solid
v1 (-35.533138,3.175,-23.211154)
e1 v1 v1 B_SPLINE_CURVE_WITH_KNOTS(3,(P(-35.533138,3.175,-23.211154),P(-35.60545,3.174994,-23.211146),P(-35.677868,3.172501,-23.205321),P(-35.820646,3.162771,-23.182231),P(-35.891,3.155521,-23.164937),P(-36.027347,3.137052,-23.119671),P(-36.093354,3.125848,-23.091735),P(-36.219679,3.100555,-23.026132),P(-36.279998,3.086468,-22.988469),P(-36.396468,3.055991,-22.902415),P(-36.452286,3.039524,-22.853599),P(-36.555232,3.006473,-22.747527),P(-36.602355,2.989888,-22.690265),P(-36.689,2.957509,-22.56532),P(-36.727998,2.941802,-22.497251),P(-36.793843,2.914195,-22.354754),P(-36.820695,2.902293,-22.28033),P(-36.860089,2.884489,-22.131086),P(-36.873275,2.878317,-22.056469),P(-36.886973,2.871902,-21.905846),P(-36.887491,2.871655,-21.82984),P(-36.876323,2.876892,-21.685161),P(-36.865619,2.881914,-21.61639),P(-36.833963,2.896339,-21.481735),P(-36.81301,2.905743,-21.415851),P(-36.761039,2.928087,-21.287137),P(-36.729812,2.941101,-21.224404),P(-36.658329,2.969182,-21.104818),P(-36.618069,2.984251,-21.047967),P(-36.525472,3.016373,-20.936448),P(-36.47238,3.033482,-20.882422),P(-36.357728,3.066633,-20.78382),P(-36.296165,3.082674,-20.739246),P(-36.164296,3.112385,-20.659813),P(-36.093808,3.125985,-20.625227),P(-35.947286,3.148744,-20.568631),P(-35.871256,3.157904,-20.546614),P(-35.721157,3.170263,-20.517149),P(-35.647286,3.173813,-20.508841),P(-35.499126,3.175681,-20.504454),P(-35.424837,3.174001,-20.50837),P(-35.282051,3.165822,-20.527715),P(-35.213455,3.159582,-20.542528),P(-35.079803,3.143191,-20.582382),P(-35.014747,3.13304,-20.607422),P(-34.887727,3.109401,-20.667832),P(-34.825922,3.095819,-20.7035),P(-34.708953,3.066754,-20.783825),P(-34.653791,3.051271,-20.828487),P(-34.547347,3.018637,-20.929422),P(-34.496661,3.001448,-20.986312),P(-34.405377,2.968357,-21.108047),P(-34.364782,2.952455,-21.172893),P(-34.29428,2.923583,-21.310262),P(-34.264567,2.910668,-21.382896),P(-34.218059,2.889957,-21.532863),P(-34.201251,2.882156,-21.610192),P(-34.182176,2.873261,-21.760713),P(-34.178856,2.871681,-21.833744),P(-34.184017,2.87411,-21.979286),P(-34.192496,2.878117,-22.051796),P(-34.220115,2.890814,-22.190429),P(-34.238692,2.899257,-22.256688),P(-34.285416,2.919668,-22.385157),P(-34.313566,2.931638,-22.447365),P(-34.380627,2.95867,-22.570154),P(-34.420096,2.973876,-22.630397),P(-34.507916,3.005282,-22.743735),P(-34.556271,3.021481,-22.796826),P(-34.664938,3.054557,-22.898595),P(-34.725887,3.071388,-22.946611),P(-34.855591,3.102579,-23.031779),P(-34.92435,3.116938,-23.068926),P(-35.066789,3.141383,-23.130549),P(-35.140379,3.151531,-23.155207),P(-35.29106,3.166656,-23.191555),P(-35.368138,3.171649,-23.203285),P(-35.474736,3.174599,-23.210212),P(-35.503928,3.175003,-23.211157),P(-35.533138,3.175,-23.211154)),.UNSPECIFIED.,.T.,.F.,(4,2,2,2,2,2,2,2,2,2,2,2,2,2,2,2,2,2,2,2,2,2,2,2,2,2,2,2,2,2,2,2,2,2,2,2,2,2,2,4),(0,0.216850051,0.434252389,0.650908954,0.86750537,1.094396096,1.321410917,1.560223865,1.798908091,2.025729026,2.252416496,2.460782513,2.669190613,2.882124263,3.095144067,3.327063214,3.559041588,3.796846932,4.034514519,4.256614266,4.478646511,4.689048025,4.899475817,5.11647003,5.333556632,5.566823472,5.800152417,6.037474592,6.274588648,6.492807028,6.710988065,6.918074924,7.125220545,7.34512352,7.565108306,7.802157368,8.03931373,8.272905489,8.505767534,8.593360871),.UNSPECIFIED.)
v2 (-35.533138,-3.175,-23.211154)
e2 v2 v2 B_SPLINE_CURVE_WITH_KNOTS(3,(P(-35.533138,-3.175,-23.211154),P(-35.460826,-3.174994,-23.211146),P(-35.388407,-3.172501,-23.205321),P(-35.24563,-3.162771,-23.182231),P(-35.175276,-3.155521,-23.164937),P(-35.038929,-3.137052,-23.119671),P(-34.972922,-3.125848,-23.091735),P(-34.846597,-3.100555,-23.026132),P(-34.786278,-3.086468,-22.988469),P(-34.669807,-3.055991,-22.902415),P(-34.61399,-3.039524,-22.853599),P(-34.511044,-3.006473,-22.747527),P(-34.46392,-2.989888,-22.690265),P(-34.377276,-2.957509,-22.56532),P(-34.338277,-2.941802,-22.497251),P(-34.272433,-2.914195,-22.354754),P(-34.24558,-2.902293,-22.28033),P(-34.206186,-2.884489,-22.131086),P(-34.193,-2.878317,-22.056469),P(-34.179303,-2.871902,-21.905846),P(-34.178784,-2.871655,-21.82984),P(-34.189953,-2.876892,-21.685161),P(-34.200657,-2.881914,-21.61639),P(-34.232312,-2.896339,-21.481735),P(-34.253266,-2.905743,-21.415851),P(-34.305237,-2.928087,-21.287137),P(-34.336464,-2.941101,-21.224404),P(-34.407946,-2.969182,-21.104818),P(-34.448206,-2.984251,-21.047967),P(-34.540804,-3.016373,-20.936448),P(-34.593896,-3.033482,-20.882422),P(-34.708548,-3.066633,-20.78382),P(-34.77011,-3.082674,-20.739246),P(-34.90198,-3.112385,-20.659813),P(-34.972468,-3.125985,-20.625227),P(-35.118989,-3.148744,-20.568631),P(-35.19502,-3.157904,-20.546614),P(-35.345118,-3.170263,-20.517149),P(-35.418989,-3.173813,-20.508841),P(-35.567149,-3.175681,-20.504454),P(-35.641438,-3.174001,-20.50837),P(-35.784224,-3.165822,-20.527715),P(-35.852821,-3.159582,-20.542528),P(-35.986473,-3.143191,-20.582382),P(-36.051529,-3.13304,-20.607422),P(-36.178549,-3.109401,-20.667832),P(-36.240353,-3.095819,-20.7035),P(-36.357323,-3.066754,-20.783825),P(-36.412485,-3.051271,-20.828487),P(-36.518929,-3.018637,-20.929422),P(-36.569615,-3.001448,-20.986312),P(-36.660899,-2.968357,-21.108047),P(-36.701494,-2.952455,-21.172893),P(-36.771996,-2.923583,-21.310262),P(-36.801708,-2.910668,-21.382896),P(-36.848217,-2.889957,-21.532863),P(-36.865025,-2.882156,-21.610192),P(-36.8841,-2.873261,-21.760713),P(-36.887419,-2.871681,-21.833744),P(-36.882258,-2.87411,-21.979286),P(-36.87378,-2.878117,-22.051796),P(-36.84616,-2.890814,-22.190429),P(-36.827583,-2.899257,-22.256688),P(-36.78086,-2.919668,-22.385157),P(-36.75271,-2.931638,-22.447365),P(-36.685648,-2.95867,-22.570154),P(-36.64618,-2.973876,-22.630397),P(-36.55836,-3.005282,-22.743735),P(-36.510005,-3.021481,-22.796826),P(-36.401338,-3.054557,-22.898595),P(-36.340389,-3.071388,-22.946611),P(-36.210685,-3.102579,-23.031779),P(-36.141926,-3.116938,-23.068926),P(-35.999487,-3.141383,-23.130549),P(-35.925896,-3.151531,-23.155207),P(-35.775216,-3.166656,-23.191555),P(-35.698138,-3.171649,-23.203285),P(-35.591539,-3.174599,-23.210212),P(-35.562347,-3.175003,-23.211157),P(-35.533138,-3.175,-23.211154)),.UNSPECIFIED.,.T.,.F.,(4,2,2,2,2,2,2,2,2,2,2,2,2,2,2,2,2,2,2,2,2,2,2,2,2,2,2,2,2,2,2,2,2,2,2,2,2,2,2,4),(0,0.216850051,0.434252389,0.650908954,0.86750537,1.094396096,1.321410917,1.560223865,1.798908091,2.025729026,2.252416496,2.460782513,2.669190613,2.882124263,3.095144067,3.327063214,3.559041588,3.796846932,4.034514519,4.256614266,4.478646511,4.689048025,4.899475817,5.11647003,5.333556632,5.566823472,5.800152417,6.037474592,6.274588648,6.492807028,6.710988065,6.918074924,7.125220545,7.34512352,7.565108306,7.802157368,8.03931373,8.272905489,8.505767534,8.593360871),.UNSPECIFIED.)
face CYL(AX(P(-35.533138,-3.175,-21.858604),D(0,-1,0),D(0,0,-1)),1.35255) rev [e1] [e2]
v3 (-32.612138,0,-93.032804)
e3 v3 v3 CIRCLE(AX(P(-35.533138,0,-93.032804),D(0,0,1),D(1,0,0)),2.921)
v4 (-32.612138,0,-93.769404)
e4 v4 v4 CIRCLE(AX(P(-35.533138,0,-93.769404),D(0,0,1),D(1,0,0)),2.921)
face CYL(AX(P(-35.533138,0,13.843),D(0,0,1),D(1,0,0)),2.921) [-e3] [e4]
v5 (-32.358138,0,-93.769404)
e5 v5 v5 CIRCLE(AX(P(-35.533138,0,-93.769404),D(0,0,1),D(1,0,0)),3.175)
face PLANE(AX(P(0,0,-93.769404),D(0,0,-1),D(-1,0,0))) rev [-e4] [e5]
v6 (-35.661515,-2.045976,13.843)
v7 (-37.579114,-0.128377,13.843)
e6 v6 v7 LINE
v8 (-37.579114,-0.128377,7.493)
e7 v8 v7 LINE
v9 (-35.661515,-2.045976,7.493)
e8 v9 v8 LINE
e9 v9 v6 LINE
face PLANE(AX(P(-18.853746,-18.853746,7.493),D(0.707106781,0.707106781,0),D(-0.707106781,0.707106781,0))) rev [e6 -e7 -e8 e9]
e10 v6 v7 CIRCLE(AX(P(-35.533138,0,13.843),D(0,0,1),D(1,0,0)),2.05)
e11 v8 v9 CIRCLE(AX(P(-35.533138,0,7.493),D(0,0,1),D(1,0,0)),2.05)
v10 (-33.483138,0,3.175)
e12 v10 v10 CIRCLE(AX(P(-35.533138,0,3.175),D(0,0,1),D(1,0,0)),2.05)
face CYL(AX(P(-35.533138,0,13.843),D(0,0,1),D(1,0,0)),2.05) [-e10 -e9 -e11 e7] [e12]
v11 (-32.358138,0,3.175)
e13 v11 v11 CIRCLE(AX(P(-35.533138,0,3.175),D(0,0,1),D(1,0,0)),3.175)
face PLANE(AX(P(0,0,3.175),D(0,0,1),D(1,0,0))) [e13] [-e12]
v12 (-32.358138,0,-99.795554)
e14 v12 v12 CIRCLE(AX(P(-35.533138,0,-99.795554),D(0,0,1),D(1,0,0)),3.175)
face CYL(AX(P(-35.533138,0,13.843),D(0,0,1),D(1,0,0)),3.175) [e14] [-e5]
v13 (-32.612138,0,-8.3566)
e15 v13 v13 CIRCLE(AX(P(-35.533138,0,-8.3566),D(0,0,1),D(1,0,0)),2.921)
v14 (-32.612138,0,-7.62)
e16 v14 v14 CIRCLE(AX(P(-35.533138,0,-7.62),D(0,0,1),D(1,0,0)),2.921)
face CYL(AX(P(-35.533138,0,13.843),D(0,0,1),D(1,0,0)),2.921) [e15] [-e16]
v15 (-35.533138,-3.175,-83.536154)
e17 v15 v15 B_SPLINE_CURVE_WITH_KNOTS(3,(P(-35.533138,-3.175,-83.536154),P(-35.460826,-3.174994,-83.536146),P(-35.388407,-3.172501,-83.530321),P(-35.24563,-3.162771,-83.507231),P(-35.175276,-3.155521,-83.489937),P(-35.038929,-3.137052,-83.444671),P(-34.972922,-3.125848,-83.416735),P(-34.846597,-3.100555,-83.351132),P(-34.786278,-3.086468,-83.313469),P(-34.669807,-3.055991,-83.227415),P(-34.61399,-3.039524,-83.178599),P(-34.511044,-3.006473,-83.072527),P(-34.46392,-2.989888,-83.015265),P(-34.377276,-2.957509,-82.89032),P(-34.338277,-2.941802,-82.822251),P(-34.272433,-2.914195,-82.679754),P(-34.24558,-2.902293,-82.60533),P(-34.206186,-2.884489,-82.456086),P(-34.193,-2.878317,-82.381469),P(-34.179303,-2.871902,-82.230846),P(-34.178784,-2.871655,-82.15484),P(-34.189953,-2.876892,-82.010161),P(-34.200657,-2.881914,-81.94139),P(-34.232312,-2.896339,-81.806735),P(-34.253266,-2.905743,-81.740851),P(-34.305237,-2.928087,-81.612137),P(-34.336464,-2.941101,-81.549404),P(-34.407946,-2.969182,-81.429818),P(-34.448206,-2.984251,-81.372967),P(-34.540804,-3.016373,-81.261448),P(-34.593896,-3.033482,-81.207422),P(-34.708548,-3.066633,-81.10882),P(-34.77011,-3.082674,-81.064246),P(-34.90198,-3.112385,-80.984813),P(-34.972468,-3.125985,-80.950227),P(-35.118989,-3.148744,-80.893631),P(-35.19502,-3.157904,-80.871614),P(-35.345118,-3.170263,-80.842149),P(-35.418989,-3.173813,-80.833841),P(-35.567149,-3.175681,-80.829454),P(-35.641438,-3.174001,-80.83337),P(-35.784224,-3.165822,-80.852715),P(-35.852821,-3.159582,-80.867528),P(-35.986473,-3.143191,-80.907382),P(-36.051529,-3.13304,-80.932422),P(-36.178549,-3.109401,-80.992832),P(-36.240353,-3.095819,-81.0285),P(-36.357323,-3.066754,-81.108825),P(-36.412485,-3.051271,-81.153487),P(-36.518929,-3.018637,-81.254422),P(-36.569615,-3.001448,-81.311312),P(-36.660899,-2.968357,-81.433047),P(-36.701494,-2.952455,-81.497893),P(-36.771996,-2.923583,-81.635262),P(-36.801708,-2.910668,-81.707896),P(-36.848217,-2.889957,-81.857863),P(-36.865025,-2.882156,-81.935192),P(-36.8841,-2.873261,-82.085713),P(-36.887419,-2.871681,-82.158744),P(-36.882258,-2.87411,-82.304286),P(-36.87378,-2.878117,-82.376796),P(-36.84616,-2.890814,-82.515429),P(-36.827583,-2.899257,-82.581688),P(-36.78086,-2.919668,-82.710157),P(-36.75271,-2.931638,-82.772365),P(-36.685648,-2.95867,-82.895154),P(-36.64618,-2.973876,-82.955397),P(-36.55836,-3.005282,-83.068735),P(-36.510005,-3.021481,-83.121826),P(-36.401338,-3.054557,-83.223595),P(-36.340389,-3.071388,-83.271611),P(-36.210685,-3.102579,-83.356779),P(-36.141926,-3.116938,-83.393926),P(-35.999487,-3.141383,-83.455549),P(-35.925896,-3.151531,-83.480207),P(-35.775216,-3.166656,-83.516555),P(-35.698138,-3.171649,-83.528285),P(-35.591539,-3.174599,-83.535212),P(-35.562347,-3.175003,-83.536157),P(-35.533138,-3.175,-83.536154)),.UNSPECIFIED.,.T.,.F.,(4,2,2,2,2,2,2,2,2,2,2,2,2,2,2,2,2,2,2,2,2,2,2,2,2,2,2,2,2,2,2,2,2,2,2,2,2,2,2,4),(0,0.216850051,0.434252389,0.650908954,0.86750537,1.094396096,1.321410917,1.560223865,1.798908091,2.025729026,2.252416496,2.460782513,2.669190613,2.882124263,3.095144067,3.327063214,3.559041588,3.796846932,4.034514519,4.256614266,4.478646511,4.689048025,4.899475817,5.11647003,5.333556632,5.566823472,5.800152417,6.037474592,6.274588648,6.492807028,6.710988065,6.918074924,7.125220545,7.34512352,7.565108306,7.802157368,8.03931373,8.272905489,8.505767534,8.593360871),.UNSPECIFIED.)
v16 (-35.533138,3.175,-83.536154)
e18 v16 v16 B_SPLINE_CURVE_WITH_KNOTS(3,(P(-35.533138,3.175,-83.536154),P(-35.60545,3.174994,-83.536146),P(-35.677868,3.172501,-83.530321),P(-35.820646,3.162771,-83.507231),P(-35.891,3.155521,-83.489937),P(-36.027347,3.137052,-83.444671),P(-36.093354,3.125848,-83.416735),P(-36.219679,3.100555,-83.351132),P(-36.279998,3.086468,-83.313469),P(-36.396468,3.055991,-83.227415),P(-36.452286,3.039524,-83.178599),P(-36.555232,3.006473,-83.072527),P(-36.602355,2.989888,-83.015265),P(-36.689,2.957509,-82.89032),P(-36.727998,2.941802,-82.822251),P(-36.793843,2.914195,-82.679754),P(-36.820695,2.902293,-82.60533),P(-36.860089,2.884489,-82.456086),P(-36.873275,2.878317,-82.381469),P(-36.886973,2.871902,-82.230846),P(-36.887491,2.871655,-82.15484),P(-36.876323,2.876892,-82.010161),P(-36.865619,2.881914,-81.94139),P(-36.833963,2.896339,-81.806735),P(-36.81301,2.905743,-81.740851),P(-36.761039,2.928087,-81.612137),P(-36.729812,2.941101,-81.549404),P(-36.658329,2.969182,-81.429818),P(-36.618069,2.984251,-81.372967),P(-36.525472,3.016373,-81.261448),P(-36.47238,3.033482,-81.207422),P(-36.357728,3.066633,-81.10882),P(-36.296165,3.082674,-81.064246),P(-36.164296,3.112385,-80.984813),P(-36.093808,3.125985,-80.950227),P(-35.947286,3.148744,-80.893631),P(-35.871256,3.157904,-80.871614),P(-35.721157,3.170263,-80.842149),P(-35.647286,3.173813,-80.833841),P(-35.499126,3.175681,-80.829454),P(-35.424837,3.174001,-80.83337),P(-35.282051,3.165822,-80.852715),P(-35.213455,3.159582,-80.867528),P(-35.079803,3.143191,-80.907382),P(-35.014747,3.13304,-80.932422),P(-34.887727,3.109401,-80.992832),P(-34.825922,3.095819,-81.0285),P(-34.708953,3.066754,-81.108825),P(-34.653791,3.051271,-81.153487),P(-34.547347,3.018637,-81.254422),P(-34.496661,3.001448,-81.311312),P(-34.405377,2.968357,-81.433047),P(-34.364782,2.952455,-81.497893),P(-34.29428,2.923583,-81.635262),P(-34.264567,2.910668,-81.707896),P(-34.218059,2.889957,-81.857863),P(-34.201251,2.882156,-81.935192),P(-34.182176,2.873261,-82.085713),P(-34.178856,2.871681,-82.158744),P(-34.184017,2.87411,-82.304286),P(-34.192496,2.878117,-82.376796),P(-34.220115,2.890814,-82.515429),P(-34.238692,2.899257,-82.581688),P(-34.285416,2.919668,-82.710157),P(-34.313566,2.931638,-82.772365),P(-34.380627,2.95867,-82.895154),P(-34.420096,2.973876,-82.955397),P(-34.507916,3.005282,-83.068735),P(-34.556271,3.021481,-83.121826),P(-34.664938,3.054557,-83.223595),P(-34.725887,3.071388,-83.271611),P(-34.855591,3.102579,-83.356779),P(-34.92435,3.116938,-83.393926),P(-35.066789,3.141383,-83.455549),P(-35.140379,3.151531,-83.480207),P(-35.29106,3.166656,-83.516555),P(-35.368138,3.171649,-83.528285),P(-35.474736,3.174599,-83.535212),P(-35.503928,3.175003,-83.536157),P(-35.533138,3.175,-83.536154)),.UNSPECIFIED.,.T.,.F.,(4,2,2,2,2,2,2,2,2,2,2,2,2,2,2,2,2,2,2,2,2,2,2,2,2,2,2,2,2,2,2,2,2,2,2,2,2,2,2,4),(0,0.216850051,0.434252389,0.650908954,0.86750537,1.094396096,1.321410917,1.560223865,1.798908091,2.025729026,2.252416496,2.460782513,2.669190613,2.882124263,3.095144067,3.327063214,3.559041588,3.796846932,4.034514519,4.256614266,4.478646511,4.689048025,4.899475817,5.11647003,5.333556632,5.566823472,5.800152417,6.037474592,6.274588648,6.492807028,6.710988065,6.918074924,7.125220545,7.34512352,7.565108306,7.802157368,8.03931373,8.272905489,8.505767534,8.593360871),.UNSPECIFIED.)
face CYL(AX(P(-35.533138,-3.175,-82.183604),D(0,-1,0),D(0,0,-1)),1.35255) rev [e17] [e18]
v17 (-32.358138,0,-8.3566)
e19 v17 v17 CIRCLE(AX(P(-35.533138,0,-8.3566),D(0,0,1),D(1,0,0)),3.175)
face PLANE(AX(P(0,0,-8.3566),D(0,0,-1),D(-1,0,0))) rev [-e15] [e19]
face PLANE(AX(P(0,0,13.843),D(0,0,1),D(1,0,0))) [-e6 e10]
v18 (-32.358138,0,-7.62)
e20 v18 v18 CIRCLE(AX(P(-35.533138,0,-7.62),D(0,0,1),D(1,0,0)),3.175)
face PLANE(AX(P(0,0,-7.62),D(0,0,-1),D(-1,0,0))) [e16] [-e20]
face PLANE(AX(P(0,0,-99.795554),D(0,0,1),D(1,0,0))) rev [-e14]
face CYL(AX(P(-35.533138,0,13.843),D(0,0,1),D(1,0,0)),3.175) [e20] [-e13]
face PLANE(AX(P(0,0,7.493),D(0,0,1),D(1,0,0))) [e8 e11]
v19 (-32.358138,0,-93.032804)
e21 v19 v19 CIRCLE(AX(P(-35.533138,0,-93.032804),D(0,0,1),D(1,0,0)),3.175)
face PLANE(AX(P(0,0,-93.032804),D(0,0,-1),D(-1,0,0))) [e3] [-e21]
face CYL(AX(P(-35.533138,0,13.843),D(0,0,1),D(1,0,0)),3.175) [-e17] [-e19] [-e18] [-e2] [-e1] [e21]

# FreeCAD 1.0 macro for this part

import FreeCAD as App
import Part
import Sketcher
from FreeCAD import Vector
Q = App.Units.Quantity


def add_polygon(sketch, points):
    """Adds a closed chain of lines whose ends are joined by coincident constraints."""
    first, n = sketch.GeometryCount, len(points)
    for a, b in zip(points, points[1:] + points[:1]):
        sketch.addGeometry(Part.LineSegment(App.Vector(*a, 0), App.Vector(*b, 0)), False)
    for i in range(n):
        sketch.addConstraint(Sketcher.Constraint("Coincident", first + i, 2, first + (i + 1) % n, 1))

doc = App.newDocument("Part")
params = doc.addObject("Spreadsheet::Sheet", "Params")
for row, (alias, value) in enumerate([
    ("sketch1_width", "0.01 in"),
    ("sketch1_height", "0.42 in"),
    ("sketch1_width2", "0.125 in"),
    ("sketch1_height2", "0.029 in"),
    ("sketch1_height3", "0.425 in"),
    ("revolution_angle", "360 deg"),
    ("hole_diameter", "0.1065 in"),
    ("hole_depth", "0.37 in"),
    ("pocket1_length", "0.25 in"),
], start=1):
    params.set(f"A{row}", alias)
    params.set(f"B{row}", "=" + value)
    params.setAlias(f"B{row}", alias)

body = doc.addObject("PartDesign::Body", "Body")

# Sketch on XZ plane
sketch1 = body.newObject("Sketcher::SketchObject", "Sketch")
sketch1.AttachmentSupport = (doc.getObject("XZ_Plane"), [""])
sketch1.MapMode = "FlatFace"
add_polygon(sketch1, [(-35.53, -99.8), (-38.71, -99.8), (-38.71, -93.77), (-38.45, -93.77), (-38.45, -93.03), (-38.71, -93.03), (-38.71, -8.36), (-38.45, -8.36), (-38.45, -7.62), (-38.71, -7.62), (-38.71, 3.17), (-37.58, 3.17), (-37.58, 13.84), (-35.53, 13.84)])  # lines 0-13
sketch1.addGeometry(Part.LineSegment(Vector(-35.53, 13.84, 0), Vector(-35.53, -99.8, 0)), True)  # axis
sketch1.addConstraint([
    Sketcher.Constraint("Horizontal", 0),
    Sketcher.Constraint("Vertical", 1),
    Sketcher.Constraint("Horizontal", 2),
    Sketcher.Constraint("Vertical", 3),
    Sketcher.Constraint("Horizontal", 4),
    Sketcher.Constraint("Vertical", 5),
    Sketcher.Constraint("Horizontal", 6),
    Sketcher.Constraint("Vertical", 7),
    Sketcher.Constraint("Horizontal", 8),
    Sketcher.Constraint("Vertical", 9),
    Sketcher.Constraint("Horizontal", 10),
    Sketcher.Constraint("Vertical", 11),
    Sketcher.Constraint("Horizontal", 12),
    Sketcher.Constraint("Vertical", 13),
    Sketcher.Constraint("Vertical", 14),
    Sketcher.Constraint("Coincident", 14, 1, 12, 2),
    Sketcher.Constraint("Horizontal", 0, 2, 14, 2),
    Sketcher.Constraint("Vertical", 1, 2, 4, 2),
    Sketcher.Constraint("Vertical", 3, 2, 6, 2),
    Sketcher.Constraint("Vertical", 5, 2, 8, 2),
    Sketcher.Constraint("Equal", 3, 7),
    Sketcher.Constraint("DistanceX", 2, 1, 2, 2, Q("0.01 in")),
    Sketcher.Constraint("DistanceY", 11, 1, 11, 2, Q("0.42 in")),
    Sketcher.Constraint("DistanceY", 7, 2, -1, 1, Q("0.3 in")),
    Sketcher.Constraint("DistanceX", 0, 2, 0, 1, Q("0.125 in")),
    Sketcher.Constraint("DistanceY", 3, 1, 3, 2, Q("0.029 in")),
    Sketcher.Constraint("DistanceY", 9, 1, 9, 2, Q("0.425 in")),
    Sketcher.Constraint("DistanceX", 10, 1, 10, 2, Q("1.125 mm")),
    Sketcher.Constraint("DistanceY", 1, 1, 1, 2, Q("6.02615 mm")),
    Sketcher.Constraint("DistanceY", 5, 1, 5, 2, Q("84.676204 mm")),
    Sketcher.Constraint("DistanceX", 0, 2, -1, 1, Q("38.708138 mm")),
])
sketch1.setExpression("Constraints[35]", "Params.sketch1_width")
sketch1.setExpression("Constraints[36]", "Params.sketch1_height")
sketch1.setExpression("Constraints[38]", "Params.sketch1_width2")
sketch1.setExpression("Constraints[39]", "Params.sketch1_height2")
sketch1.setExpression("Constraints[40]", "Params.sketch1_height3")
revolution = body.newObject("PartDesign::Revolution", "Revolution")
revolution.Profile = sketch1
revolution.ReferenceAxis = (sketch1, ["Axis0"])
revolution.setExpression("Angle", "Params.revolution_angle")

# Sketch on XZ plane
sketch2 = body.newObject("Sketcher::SketchObject", "Sketch001")
sketch2.AttachmentSupport = (doc.getObject("XZ_Plane"), [""])
sketch2.MapMode = "FlatFace"
sketch2.AttachmentOffset = App.Placement(Vector(0, 0, 0.125 * 25.4), App.Rotation())
sketch2.addGeometry([
    Part.Circle(Vector(-35.5, -82.2, 0), Vector(0, 0, 1), 1.4),
    Part.Circle(Vector(-35.5, -21.9, 0), Vector(0, 0, 1), 1.4),
], False)
sketch2.addConstraint([
    Sketcher.Constraint("Equal", 0, 1),
    Sketcher.Constraint("Vertical", 0, 3, 1, 3),
    Sketcher.Constraint("Diameter", 0, Q("0.1065 in")),
    Sketcher.Constraint("DistanceY", 0, 3, 1, 3, Q("2.375 in")),
    Sketcher.Constraint("DistanceX", 0, 3, -1, 1, Q("35.533138 mm")),
    Sketcher.Constraint("DistanceY", 0, 3, -1, 1, Q("82.183604 mm")),
])
doc.recompute()
hole = body.newObject("PartDesign::Hole", "Hole")
hole.Profile = sketch2
hole.ThreadType = "None"
hole.setExpression("Diameter", "Params.hole_diameter")
hole.DepthType = "Dimension"
hole.setExpression("Depth", "Params.hole_depth")
hole.DrillPoint = "Angled"
hole.DrillPointAngle = 118

# Sketch on XY plane
sketch3 = body.newObject("Sketcher::SketchObject", "Sketch002")
sketch3.AttachmentSupport = (doc.getObject("XY_Plane"), [""])
sketch3.MapMode = "FlatFace"
sketch3.AttachmentOffset = App.Placement(Vector(0, 0, 0.545 * 25.4), App.Rotation())
add_polygon(sketch3, [(-20, -18), (-53, 16), (-85, -16), (-51, -49)])  # lines 0-3
sketch3.addConstraint([
    Sketcher.Constraint("Perpendicular", 0, 1),
    Sketcher.Constraint("Perpendicular", 1, 2),
    Sketcher.Constraint("Perpendicular", 2, 3),
    Sketcher.Constraint("Angle", 0, Q("135 deg")),
    Sketcher.Constraint("DistanceX", 0, 2, 2, 2, Q("1.917599 mm")),
    Sketcher.Constraint("Distance", 1, Q("44.71304 mm")),
    Sketcher.Constraint("DistanceX", 0, 2, -1, 1, Q("53.387561 mm")),
    Sketcher.Constraint("DistanceY", -1, 1, 0, 2, Q("15.68007 mm")),
])
pocket1 = body.newObject("PartDesign::Pocket", "Pocket")
pocket1.Profile = sketch3
pocket1.setExpression("Length", "Params.pocket1_length")

doc.recompute()
